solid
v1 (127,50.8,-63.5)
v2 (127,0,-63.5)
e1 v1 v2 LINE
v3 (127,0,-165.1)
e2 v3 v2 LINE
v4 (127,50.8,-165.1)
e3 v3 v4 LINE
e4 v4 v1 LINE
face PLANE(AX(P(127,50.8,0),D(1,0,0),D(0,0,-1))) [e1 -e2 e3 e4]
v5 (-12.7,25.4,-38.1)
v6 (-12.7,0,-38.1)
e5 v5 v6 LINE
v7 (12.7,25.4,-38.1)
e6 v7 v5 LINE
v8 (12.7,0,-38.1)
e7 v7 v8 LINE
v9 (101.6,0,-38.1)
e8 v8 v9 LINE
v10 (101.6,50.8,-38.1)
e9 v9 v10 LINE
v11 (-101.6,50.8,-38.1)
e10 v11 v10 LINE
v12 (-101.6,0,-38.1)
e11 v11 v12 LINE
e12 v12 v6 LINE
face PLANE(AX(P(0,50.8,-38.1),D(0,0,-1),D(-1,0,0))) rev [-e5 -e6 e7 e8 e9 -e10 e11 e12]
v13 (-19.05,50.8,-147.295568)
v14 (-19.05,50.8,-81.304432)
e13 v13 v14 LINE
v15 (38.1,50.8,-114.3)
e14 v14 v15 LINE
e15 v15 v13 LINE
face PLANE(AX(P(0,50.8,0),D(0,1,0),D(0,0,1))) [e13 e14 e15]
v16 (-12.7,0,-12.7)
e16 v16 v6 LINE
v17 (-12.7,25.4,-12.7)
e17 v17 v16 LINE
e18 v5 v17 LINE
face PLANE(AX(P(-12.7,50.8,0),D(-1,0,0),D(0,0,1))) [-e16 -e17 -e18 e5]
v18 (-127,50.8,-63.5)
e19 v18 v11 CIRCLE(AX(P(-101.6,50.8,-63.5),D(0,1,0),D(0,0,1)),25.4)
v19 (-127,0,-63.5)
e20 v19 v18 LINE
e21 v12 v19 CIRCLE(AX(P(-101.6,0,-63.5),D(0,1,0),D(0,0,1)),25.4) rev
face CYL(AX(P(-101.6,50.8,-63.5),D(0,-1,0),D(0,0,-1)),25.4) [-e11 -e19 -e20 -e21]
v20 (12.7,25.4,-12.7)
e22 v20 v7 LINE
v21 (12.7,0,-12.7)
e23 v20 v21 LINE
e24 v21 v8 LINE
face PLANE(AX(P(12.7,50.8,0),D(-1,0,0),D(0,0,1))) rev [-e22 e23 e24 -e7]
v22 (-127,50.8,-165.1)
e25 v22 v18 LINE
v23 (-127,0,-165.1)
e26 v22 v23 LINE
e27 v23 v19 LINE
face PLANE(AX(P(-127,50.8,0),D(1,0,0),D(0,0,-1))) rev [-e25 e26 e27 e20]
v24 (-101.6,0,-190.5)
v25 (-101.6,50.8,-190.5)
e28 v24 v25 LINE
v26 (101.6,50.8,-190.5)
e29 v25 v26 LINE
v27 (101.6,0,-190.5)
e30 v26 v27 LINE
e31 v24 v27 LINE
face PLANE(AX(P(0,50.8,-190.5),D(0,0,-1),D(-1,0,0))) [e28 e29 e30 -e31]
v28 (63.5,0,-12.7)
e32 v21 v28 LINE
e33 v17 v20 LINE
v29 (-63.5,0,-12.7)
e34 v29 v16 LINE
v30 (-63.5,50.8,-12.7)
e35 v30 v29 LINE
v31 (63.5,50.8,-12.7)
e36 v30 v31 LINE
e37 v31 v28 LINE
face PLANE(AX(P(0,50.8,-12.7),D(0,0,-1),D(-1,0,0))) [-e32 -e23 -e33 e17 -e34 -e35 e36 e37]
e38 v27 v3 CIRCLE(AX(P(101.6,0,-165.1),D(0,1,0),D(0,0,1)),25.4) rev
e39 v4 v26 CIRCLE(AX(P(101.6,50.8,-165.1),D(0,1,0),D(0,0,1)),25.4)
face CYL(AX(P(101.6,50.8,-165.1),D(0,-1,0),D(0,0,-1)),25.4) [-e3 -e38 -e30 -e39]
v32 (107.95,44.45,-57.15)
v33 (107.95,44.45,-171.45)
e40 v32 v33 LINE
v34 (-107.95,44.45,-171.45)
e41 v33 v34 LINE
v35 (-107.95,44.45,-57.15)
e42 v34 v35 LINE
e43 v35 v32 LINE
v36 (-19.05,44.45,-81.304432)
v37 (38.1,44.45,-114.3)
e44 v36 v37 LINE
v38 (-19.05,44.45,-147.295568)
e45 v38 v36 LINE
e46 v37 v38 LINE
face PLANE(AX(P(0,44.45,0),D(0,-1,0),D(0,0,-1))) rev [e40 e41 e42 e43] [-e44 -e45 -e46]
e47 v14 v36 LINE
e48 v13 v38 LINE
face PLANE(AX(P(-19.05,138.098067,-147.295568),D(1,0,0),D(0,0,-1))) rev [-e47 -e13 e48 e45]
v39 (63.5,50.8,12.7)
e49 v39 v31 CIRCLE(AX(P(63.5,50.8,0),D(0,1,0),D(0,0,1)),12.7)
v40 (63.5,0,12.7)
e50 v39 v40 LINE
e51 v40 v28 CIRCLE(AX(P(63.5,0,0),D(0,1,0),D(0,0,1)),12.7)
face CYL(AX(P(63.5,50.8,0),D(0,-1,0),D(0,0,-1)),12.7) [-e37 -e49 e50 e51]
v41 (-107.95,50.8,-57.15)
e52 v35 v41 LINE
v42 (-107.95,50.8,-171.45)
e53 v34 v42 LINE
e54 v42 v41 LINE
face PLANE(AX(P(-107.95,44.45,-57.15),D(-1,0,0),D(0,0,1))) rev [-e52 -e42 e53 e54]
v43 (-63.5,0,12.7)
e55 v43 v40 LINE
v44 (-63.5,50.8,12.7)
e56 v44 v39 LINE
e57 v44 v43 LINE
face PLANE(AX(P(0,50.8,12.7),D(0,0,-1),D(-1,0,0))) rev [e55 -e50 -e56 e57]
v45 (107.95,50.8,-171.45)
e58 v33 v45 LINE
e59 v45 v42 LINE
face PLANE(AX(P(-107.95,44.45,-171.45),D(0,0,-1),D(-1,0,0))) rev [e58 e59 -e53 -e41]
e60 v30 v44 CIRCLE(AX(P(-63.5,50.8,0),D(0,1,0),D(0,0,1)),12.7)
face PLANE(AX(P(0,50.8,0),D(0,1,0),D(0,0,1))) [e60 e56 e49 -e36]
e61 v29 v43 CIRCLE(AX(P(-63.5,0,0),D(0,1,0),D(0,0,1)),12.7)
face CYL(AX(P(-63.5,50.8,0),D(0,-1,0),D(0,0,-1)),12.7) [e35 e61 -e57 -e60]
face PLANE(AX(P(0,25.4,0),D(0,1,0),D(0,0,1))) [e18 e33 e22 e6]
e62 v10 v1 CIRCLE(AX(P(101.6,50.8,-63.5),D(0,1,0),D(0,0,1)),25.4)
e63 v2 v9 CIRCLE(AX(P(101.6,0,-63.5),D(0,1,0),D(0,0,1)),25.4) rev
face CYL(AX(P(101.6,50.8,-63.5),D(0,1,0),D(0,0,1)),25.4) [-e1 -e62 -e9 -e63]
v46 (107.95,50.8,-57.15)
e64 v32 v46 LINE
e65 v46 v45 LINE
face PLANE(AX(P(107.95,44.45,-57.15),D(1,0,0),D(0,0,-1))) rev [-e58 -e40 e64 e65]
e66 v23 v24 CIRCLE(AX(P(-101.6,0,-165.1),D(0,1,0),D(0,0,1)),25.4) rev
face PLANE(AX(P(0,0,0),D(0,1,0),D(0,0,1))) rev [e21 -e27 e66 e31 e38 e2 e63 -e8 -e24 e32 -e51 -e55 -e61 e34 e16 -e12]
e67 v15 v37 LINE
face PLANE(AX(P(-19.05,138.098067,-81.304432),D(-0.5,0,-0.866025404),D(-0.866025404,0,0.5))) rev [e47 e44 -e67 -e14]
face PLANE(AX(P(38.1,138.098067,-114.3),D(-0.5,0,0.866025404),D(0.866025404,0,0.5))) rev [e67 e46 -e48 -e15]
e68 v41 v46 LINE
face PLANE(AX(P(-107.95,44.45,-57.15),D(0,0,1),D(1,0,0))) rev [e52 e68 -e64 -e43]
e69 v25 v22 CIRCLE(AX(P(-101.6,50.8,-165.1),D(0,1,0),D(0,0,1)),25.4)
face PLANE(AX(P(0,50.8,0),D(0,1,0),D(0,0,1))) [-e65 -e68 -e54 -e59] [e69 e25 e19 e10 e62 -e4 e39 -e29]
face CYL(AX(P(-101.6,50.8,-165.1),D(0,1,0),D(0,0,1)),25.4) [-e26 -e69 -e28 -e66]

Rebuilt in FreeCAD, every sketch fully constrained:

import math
import FreeCAD as App
import Part
import Sketcher
from FreeCAD import Vector
Q = App.Units.Quantity


def edges_at(feature, points):
    """Names of the edges that pass closest to the given points."""
    edges = feature.Shape.Edges
    near = lambda p: min(range(len(edges)), key=lambda i: edges[i].distToShape(Part.Vertex(*p))[0])
    return sorted({f"Edge{near(p) + 1}" for p in points})


def add_polygon(sketch, points):
    """Adds a closed chain of lines whose ends are joined by coincident constraints."""
    first, n = sketch.GeometryCount, len(points)
    for a, b in zip(points, points[1:] + points[:1]):
        sketch.addGeometry(Part.LineSegment(App.Vector(*a, 0), App.Vector(*b, 0)), False)
    for i in range(n):
        sketch.addConstraint(Sketcher.Constraint("Coincident", first + i, 2, first + (i + 1) % n, 1))

doc = App.newDocument("Part")
params = doc.addObject("Spreadsheet::Sheet", "Params")
for row, (alias, value) in enumerate([
    ("sketch1_radius", "0.5 in"),
    ("sketch1_width", "2 in"),
    ("sketch1_width2", "5 in"),
    ("sketch1_width3", "10 in"),
    ("sketch1_height", "1 in"),
    ("pad1_length", "2 in"),
    ("fillet_radius", "1 in"),
    ("sketch2_width", "8.5 in"),
    ("sketch2_height", "4.5 in"),
    ("pocket1_length", "0.25 in"),
    ("pad2_length", "0.25 in"),
    ("sketch4_width", "1 in"),
    ("pocket2_length", "1 in"),
], start=1):
    params.set(f"A{row}", alias)
    params.set(f"B{row}", "=" + value)
    params.setAlias(f"B{row}", alias)

body = doc.addObject("PartDesign::Body", "Body")

# Sketch on XZ plane
sketch1 = body.newObject("Sketcher::SketchObject", "Sketch")
sketch1.AttachmentSupport = (doc.getObject("XZ_Plane"), [""])
sketch1.MapMode = "FlatFace"
sketch1.addGeometry(Part.LineSegment(Vector(-13, -13, 0), Vector(-64, -13, 0)), False)
sketch1.addGeometry(Part.ArcOfCircle(Part.Circle(Vector(-64, 0, 0), Vector(0, 0, 1), 13), math.radians(90), math.radians(270)), False)
sketch1.addGeometry(Part.LineSegment(Vector(-64, 13, 0), Vector(64, 13, 0)), False)
sketch1.addGeometry(Part.ArcOfCircle(Part.Circle(Vector(64, 0, 0), Vector(0, 0, 1), 13), math.radians(-90), math.radians(90)), False)
sketch1.addGeometry(Part.LineSegment(Vector(64, -13, 0), Vector(13, -13, 0)), False)
sketch1.addGeometry(Part.LineSegment(Vector(13, -13, 0), Vector(13, -38, 0)), False)
sketch1.addGeometry(Part.LineSegment(Vector(13, -38, 0), Vector(127, -38, 0)), False)
sketch1.addGeometry(Part.LineSegment(Vector(127, -38, 0), Vector(127, -190, 0)), False)
sketch1.addGeometry(Part.LineSegment(Vector(127, -190, 0), Vector(-127, -190, 0)), False)
sketch1.addGeometry(Part.LineSegment(Vector(-127, -190, 0), Vector(-127, -38, 0)), False)
sketch1.addGeometry(Part.LineSegment(Vector(-127, -38, 0), Vector(-13, -38, 0)), False)
sketch1.addGeometry(Part.LineSegment(Vector(-13, -38, 0), Vector(-13, -13, 0)), False)
sketch1.addConstraint(Sketcher.Constraint("Tangent", 0, 2, 1, 2))
sketch1.addConstraint(Sketcher.Constraint("Tangent", 1, 1, 2, 1))
sketch1.addConstraint(Sketcher.Constraint("Tangent", 2, 2, 3, 2))
sketch1.addConstraint(Sketcher.Constraint("Tangent", 3, 1, 4, 1))
sketch1.addConstraint(Sketcher.Constraint("Coincident", 4, 2, 5, 1))
sketch1.addConstraint(Sketcher.Constraint("Coincident", 5, 2, 6, 1))
sketch1.addConstraint(Sketcher.Constraint("Coincident", 6, 2, 7, 1))
sketch1.addConstraint(Sketcher.Constraint("Coincident", 7, 2, 8, 1))
sketch1.addConstraint(Sketcher.Constraint("Coincident", 8, 2, 9, 1))
sketch1.addConstraint(Sketcher.Constraint("Coincident", 9, 2, 10, 1))
sketch1.addConstraint(Sketcher.Constraint("Coincident", 10, 2, 11, 1))
sketch1.addConstraint(Sketcher.Constraint("Coincident", 11, 2, 0, 1))
sketch1.addConstraint(Sketcher.Constraint("Horizontal", 0))
sketch1.addConstraint(Sketcher.Constraint("Horizontal", 2))
sketch1.addConstraint(Sketcher.Constraint("Horizontal", 4))
sketch1.addConstraint(Sketcher.Constraint("Vertical", 5))
sketch1.addConstraint(Sketcher.Constraint("Horizontal", 6))
sketch1.addConstraint(Sketcher.Constraint("Vertical", 7))
sketch1.addConstraint(Sketcher.Constraint("Horizontal", 8))
sketch1.addConstraint(Sketcher.Constraint("Vertical", 9))
sketch1.addConstraint(Sketcher.Constraint("Horizontal", 10))
sketch1.addConstraint(Sketcher.Constraint("Vertical", 11))
sketch1.addConstraint(Sketcher.Constraint("Equal", 1, 3))
sketch1.addConstraint(Sketcher.Constraint("Symmetric", 1, 3, 3, 3, -1, 1))
sketch1.addConstraint(Sketcher.Constraint("Symmetric", 6, 2, 9, 2, -2))
sketch1.addConstraint(Sketcher.Constraint("Equal", 0, 4))
sketch1.addConstraint(Sketcher.Constraint("Radius", 1, Q("0.5 in")))
sketch1.addConstraint(Sketcher.Constraint("DistanceX", 0, 2, 0, 1, Q("2 in")))
sketch1.addConstraint(Sketcher.Constraint("DistanceX", 2, 1, 2, 2, Q("5 in")))
sketch1.addConstraint(Sketcher.Constraint("DistanceX", 8, 2, 8, 1, Q("10 in")))
sketch1.addConstraint(Sketcher.Constraint("DistanceY", 5, 2, 5, 1, Q("1 in")))
sketch1.addConstraint(Sketcher.Constraint("DistanceY", 7, 2, 7, 1, Q("6 in")))
sketch1.setExpression("Constraints[26]", "Params.sketch1_radius")
sketch1.setExpression("Constraints[27]", "Params.sketch1_width")
sketch1.setExpression("Constraints[28]", "Params.sketch1_width2")
sketch1.setExpression("Constraints[29]", "Params.sketch1_width3")
sketch1.setExpression("Constraints[30]", "Params.sketch1_height")
pad1 = body.newObject("PartDesign::Pad", "Pad")
pad1.Profile = sketch1
pad1.setExpression("Length", "Params.pad1_length")
pad1.Reversed = True
doc.recompute()

fillet = body.newObject("PartDesign::Fillet", "Fillet")
fillet.Base = (pad1, edges_at(pad1, [
    (127, 25.4, -38.1),
    (-127, 25.4, -38.1),
    (-127, 25.4, -190.5),
    (127, 25.4, -190.5),
]))
fillet.setExpression("Radius", "Params.fillet_radius")

# Sketch on XZ plane
sketch2 = body.newObject("Sketcher::SketchObject", "Sketch001")
sketch2.AttachmentSupport = (doc.getObject("XZ_Plane"), [""])
sketch2.MapMode = "FlatFace"
sketch2.AttachmentOffset = App.Placement(Vector(0, 0, -2 * 25.4), App.Rotation())
add_polygon(sketch2, [(-108, -171), (-108, -57), (108, -57), (108, -171)])  # lines 0-3
sketch2.addConstraint(Sketcher.Constraint("Vertical", 0))
sketch2.addConstraint(Sketcher.Constraint("Horizontal", 1))
sketch2.addConstraint(Sketcher.Constraint("Vertical", 2))
sketch2.addConstraint(Sketcher.Constraint("Horizontal", 3))
sketch2.addConstraint(Sketcher.Constraint("DistanceX", 1, 1, 1, 2, Q("8.5 in")))
sketch2.addConstraint(Sketcher.Constraint("DistanceY", 0, 1, 0, 2, Q("4.5 in")))
sketch2.addConstraint(Sketcher.Constraint("DistanceX", 0, 2, -1, 1, Q("4.25 in")))
sketch2.addConstraint(Sketcher.Constraint("DistanceY", 0, 2, -1, 1, Q("2.25 in")))
sketch2.setExpression("Constraints[8]", "Params.sketch2_width")
sketch2.setExpression("Constraints[9]", "Params.sketch2_height")
pocket1 = body.newObject("PartDesign::Pocket", "Pocket")
pocket1.Profile = sketch2
pocket1.setExpression("Length", "Params.pocket1_length")
pocket1.Reversed = True

# Sketch on XZ plane
sketch3 = body.newObject("Sketcher::SketchObject", "Sketch002")
sketch3.AttachmentSupport = (doc.getObject("XZ_Plane"), [""])
sketch3.MapMode = "FlatFace"
sketch3.AttachmentOffset = App.Placement(Vector(0, 0, -1.75 * 25.4), App.Rotation())
add_polygon(sketch3, [(38, -114), (-19, -147), (-19, -81)])  # lines 0-2
sketch3.addConstraint(Sketcher.Constraint("Vertical", 1))
sketch3.addConstraint(Sketcher.Constraint("Equal", 0, 2))
sketch3.addConstraint(Sketcher.Constraint("Angle", 0, Q("-150 deg")))
sketch3.addConstraint(Sketcher.Constraint("DistanceX", -1, 1, 2, 2, Q("1.5 in")))
sketch3.addConstraint(Sketcher.Constraint("DistanceY", 2, 2, -1, 1, Q("4.5 in")))
sketch3.addConstraint(Sketcher.Constraint("DistanceX", 0, 2, -1, 1, Q("0.75 in")))
pad2 = body.newObject("PartDesign::Pad", "Pad001")
pad2.Profile = sketch3
pad2.setExpression("Length", "Params.pad2_length")
pad2.Reversed = True

# Sketch on XZ plane
sketch4 = body.newObject("Sketcher::SketchObject", "Sketch003")
sketch4.AttachmentSupport = (doc.getObject("XZ_Plane"), [""])
sketch4.MapMode = "FlatFace"
sketch4.AttachmentOffset = App.Placement(Vector(0, 0, -2 * 25.4), App.Rotation())
add_polygon(sketch4, [(-13, -38), (-13, -13), (13, -13), (13, -38)])  # lines 0-3
sketch4.addConstraint(Sketcher.Constraint("Vertical", 0))
sketch4.addConstraint(Sketcher.Constraint("Horizontal", 1))
sketch4.addConstraint(Sketcher.Constraint("Vertical", 2))
sketch4.addConstraint(Sketcher.Constraint("Horizontal", 3))
sketch4.addConstraint(Sketcher.Constraint("Equal", 3, 0))
sketch4.addConstraint(Sketcher.Constraint("DistanceX", 1, 1, 1, 2, Q("1 in")))
sketch4.addConstraint(Sketcher.Constraint("DistanceX", 0, 2, -1, 1, Q("0.5 in")))
sketch4.addConstraint(Sketcher.Constraint("DistanceY", 0, 2, -1, 1, Q("0.5 in")))
sketch4.setExpression("Constraints[9]", "Params.sketch4_width")
pocket2 = body.newObject("PartDesign::Pocket", "Pocket001")
pocket2.Profile = sketch4
pocket2.setExpression("Length", "Params.pocket2_length")
pocket2.Reversed = True

doc.recompute()
